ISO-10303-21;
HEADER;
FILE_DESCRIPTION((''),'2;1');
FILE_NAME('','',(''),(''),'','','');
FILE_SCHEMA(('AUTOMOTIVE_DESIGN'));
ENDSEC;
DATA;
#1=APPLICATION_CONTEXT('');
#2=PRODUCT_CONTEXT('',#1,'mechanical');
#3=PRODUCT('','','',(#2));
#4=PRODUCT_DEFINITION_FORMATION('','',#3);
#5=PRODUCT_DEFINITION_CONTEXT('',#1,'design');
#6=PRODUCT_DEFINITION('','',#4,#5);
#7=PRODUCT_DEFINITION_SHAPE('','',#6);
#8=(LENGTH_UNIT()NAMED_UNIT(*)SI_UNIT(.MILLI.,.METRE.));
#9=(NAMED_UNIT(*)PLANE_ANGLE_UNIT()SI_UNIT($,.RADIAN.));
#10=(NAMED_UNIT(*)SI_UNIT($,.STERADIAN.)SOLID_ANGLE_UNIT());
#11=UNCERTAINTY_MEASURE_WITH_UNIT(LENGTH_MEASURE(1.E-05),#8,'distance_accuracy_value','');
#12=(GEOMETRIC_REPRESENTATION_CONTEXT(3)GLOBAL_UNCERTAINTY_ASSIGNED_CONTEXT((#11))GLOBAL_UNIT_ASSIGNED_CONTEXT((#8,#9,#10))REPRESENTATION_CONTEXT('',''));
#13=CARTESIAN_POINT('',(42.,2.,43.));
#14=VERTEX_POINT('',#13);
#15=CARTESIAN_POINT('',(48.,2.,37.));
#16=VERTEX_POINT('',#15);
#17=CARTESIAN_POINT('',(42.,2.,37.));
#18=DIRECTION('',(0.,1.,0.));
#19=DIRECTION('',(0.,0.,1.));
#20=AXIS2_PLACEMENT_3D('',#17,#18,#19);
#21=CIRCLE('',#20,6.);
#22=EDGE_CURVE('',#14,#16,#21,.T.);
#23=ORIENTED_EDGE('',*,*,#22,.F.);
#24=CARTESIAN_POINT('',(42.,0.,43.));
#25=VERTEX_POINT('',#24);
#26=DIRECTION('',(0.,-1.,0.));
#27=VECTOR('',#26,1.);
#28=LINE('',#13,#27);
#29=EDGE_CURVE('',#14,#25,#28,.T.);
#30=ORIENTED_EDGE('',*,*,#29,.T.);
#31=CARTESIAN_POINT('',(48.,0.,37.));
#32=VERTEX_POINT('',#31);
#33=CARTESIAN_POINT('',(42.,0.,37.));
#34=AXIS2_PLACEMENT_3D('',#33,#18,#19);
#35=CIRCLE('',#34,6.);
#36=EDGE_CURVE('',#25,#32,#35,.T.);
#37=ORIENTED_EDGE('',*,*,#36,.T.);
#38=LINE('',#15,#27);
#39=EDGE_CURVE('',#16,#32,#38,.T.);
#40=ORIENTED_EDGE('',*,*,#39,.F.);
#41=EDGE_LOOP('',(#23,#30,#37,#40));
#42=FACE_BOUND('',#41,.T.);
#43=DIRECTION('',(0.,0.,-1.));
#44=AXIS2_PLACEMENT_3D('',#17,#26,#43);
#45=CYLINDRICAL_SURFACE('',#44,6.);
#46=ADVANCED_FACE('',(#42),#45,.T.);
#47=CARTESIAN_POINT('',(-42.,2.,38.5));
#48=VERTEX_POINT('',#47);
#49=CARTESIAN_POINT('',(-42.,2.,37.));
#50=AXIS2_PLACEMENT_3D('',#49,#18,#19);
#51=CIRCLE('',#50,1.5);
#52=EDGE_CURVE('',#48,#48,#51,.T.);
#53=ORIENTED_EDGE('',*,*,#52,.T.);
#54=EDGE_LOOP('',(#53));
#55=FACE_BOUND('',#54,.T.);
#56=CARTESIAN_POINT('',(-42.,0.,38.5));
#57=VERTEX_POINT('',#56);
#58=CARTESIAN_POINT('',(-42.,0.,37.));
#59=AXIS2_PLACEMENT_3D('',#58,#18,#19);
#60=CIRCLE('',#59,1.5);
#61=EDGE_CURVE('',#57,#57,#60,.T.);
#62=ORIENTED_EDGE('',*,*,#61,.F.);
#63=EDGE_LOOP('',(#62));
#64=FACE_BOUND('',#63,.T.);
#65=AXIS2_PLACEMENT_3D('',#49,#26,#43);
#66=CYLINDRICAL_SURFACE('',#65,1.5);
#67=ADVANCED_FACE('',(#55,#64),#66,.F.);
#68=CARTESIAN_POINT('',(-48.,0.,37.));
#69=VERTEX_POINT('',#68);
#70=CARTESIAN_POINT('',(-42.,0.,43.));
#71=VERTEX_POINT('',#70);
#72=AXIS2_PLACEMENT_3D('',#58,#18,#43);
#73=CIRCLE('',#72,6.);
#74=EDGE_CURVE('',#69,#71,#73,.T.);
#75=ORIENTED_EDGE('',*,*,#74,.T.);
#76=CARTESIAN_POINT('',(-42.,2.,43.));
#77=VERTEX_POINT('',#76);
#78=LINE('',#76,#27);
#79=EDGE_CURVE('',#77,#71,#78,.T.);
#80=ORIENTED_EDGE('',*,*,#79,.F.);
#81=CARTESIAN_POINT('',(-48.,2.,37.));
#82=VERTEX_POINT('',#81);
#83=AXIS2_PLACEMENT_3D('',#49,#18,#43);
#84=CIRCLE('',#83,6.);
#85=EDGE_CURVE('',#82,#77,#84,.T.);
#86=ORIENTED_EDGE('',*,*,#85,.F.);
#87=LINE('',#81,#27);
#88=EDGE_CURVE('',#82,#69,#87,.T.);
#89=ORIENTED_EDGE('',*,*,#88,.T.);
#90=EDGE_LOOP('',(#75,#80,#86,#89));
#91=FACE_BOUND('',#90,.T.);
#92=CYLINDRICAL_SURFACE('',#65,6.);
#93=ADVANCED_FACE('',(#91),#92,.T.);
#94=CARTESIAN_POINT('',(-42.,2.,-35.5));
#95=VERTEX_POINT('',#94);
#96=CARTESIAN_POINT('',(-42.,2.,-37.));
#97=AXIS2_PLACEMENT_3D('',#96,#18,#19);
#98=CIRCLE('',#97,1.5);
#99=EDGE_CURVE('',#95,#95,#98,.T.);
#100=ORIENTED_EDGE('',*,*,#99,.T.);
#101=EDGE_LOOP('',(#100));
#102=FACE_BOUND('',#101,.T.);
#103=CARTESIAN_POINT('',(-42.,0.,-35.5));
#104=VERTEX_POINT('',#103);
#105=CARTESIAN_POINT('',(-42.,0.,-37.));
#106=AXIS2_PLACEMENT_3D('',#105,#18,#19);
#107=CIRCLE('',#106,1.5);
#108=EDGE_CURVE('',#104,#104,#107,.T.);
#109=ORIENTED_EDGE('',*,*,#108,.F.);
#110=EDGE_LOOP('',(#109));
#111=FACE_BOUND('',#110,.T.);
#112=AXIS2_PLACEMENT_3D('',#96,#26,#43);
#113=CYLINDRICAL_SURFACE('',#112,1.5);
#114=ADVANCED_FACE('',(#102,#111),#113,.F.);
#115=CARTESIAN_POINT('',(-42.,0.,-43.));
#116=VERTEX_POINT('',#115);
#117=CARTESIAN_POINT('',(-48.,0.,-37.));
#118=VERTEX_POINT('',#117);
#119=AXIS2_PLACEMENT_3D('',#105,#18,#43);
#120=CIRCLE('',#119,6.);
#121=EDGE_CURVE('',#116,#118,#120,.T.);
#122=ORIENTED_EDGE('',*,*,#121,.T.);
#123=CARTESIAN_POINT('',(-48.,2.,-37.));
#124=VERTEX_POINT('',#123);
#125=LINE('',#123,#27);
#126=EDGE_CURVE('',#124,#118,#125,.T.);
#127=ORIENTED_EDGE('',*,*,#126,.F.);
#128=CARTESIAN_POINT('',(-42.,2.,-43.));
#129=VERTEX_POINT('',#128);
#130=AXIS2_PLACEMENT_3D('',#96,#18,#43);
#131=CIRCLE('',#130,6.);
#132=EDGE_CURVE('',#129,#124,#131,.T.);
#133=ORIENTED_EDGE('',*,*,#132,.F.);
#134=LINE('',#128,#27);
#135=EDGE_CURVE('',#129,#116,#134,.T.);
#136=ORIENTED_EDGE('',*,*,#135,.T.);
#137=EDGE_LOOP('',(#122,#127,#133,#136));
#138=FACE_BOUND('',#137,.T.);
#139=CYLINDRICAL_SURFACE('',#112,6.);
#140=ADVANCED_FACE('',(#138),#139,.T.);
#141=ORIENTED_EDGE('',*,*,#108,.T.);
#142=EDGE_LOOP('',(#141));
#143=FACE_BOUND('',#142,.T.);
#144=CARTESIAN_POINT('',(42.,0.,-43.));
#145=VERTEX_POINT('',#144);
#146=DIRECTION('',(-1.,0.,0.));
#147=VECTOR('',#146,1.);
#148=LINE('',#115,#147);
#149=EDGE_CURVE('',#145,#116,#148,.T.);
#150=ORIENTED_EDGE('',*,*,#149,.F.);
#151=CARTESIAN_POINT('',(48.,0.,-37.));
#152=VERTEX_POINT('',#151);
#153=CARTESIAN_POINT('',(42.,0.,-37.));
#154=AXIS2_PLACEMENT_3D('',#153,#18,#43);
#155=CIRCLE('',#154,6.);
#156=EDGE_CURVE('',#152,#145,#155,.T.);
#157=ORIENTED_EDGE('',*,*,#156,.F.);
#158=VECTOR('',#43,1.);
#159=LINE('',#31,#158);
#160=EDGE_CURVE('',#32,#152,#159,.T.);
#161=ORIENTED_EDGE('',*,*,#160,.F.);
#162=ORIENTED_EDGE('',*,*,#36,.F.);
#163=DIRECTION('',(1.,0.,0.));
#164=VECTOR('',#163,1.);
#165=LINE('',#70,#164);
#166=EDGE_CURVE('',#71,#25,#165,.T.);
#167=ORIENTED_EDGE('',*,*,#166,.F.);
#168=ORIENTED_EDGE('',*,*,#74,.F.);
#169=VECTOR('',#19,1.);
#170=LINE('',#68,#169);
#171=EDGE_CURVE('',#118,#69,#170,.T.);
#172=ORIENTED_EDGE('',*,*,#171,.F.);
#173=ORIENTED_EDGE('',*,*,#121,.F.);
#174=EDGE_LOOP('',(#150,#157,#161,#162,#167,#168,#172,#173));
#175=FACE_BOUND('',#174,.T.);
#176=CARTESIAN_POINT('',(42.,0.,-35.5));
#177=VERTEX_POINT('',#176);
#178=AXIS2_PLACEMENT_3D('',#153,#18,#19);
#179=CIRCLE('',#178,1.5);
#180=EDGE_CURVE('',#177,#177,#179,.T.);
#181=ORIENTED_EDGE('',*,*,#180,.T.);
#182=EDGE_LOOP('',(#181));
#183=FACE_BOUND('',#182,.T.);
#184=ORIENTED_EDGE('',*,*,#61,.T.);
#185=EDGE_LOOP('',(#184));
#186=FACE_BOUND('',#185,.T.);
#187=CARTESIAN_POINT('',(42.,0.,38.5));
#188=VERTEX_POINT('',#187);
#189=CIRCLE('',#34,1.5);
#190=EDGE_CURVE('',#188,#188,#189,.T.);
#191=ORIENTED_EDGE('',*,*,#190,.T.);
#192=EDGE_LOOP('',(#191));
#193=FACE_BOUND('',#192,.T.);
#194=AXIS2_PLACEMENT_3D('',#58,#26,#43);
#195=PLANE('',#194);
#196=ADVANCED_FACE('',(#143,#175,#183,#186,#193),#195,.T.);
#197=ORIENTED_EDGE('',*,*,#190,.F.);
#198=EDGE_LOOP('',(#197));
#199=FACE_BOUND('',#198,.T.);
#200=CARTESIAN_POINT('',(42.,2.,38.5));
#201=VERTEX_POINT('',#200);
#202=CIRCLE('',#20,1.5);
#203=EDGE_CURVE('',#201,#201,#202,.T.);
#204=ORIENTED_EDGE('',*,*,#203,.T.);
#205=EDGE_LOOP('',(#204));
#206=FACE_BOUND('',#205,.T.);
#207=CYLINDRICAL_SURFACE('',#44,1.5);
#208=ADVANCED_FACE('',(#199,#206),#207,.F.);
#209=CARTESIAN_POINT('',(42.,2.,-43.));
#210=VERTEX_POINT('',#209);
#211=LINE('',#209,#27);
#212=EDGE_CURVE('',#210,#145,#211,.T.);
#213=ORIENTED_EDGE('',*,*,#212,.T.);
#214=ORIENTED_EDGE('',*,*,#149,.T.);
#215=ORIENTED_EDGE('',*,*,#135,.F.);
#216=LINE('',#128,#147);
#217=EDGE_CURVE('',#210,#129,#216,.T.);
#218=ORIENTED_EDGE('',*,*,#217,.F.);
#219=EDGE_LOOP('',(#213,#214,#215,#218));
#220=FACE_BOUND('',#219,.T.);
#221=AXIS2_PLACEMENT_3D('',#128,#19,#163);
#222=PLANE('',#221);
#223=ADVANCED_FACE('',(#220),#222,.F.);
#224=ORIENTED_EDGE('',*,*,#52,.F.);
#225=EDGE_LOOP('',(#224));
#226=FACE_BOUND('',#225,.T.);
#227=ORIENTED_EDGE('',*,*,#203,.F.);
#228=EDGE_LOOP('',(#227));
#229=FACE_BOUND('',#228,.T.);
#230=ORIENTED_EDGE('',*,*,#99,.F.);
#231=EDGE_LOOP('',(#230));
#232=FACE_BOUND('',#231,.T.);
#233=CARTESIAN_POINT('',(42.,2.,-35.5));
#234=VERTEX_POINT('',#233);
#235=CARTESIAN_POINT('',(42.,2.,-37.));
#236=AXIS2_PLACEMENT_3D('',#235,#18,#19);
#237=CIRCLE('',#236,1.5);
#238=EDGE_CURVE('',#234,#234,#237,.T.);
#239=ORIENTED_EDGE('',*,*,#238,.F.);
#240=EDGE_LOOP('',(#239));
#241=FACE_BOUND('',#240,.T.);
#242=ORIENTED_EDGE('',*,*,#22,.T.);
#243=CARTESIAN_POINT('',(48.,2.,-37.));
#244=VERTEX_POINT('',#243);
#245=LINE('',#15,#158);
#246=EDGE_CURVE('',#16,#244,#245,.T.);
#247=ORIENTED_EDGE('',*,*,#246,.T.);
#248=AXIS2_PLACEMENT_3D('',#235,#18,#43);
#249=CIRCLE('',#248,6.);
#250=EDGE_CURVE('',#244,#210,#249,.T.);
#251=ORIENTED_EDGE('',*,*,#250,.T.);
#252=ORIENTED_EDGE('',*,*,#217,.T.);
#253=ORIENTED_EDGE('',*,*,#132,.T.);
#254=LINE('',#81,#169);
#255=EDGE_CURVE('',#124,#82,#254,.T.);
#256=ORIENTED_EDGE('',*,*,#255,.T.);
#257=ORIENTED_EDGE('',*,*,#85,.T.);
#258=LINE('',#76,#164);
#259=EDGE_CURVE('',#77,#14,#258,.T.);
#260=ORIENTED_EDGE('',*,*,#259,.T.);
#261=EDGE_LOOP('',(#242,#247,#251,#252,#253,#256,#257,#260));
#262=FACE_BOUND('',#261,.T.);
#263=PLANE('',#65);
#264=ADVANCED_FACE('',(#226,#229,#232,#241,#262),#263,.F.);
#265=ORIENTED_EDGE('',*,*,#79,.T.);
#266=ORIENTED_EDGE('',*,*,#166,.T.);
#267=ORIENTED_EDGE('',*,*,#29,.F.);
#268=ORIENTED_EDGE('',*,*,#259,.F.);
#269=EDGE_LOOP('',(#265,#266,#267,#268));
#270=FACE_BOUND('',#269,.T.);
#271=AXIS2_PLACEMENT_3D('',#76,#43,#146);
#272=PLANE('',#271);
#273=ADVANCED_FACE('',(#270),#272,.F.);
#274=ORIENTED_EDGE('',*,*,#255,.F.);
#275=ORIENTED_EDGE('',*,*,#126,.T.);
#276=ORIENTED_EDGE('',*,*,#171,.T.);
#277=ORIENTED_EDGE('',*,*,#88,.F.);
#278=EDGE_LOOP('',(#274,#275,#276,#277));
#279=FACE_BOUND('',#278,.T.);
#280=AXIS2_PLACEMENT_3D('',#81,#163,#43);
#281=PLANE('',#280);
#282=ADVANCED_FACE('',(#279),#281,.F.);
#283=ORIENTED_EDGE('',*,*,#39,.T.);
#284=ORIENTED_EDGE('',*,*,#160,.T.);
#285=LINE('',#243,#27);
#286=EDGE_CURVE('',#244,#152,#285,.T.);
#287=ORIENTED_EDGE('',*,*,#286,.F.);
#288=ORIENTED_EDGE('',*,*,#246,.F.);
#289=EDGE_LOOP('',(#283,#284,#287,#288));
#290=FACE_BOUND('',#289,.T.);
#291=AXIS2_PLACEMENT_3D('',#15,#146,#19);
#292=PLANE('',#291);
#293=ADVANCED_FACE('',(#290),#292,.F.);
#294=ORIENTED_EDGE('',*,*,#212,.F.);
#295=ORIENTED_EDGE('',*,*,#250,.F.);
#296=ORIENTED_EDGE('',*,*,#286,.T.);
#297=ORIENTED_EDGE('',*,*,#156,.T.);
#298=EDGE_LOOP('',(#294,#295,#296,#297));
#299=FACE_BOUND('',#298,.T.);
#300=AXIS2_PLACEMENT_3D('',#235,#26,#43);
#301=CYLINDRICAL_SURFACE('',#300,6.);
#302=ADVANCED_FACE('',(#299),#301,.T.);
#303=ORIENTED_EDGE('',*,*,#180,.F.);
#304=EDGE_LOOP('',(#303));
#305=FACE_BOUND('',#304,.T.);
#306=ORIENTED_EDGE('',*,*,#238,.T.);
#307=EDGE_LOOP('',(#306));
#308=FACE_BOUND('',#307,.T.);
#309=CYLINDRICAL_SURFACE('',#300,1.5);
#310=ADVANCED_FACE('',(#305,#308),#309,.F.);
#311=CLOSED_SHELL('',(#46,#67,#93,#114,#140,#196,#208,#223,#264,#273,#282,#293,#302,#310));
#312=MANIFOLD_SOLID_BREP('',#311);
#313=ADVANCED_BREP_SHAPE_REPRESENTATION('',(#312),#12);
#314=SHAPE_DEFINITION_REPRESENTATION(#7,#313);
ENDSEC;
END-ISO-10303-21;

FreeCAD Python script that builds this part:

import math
import FreeCAD as App
import Part
import Sketcher
from FreeCAD import Vector

doc = App.newDocument("Part")
body = doc.addObject("PartDesign::Body", "Body")

# Sketch on XZ plane
sketch1 = body.newObject("Sketcher::SketchObject", "Sketch")
sketch1.AttachmentSupport = (doc.getObject("XZ_Plane"), [""])
sketch1.MapMode = "FlatFace"
sketch1.addGeometry([
    Part.LineSegment(Vector(-42, 43, 0), Vector(42, 43, 0)),  # 0
    Part.ArcOfCircle(Part.Circle(Vector(42, 37, 0), Vector(0, 0, 1), 6), math.radians(0), math.radians(90)),  # 1
    Part.LineSegment(Vector(48, 37, 0), Vector(48, -37, 0)),  # 2
    Part.ArcOfCircle(Part.Circle(Vector(42, -37, 0), Vector(0, 0, 1), 6), math.radians(-90), math.radians(0)),  # 3
    Part.LineSegment(Vector(42, -43, 0), Vector(-42, -43, 0)),  # 4
    Part.ArcOfCircle(Part.Circle(Vector(-42, -37, 0), Vector(0, 0, 1), 6), math.radians(180), math.radians(270)),  # 5
    Part.LineSegment(Vector(-48, -37, 0), Vector(-48, 37, 0)),  # 6
    Part.ArcOfCircle(Part.Circle(Vector(-42, 37, 0), Vector(0, 0, 1), 6), math.radians(90), math.radians(180)),  # 7
    Part.Circle(Vector(-42, 37, 0), Vector(0, 0, 1), 1.5),  # 8
    Part.Circle(Vector(42, 37, 0), Vector(0, 0, 1), 1.5),  # 9
    Part.Circle(Vector(-42, -37, 0), Vector(0, 0, 1), 1.5),  # 10
    Part.Circle(Vector(42, -37, 0), Vector(0, 0, 1), 1.5),  # 11
], False)
sketch1.addConstraint([
    Sketcher.Constraint("Tangent", 0, 2, 1, 2),
    Sketcher.Constraint("Tangent", 1, 1, 2, 1),
    Sketcher.Constraint("Tangent", 2, 2, 3, 2),
    Sketcher.Constraint("Tangent", 3, 1, 4, 1),
    Sketcher.Constraint("Tangent", 4, 2, 5, 2),
    Sketcher.Constraint("Tangent", 5, 1, 6, 1),
    Sketcher.Constraint("Tangent", 6, 2, 7, 2),
    Sketcher.Constraint("Tangent", 7, 1, 0, 1),
    Sketcher.Constraint("Horizontal", 0),
    Sketcher.Constraint("Vertical", 2),
    Sketcher.Constraint("Horizontal", 4),
    Sketcher.Constraint("Vertical", 6),
    Sketcher.Constraint("Coincident", 8, 3, 7, 3),
    Sketcher.Constraint("Coincident", 9, 3, 1, 3),
    Sketcher.Constraint("Coincident", 10, 3, 5, 3),
    Sketcher.Constraint("Coincident", 11, 3, 3, 3),
    Sketcher.Constraint("Equal", 1, 3),
    Sketcher.Constraint("Equal", 3, 5),
    Sketcher.Constraint("Equal", 5, 7),
    Sketcher.Constraint("Equal", 8, 9),
    Sketcher.Constraint("Equal", 9, 10),
    Sketcher.Constraint("Equal", 10, 11),
    Sketcher.Constraint("Symmetric", 1, 3, 5, 3, -1, 1),
    Sketcher.Constraint("Diameter", 8, 3.0),
    Sketcher.Constraint("Radius", 1, 6.0),
    Sketcher.Constraint("DistanceX", 0, 1, 0, 2, 84.0),
    Sketcher.Constraint("DistanceY", 2, 2, 2, 1, 74.0),
])
pad1 = body.newObject("PartDesign::Pad", "Pad")
pad1.Profile = sketch1
pad1.Length = 2
pad1.Reversed = True

doc.recompute()
